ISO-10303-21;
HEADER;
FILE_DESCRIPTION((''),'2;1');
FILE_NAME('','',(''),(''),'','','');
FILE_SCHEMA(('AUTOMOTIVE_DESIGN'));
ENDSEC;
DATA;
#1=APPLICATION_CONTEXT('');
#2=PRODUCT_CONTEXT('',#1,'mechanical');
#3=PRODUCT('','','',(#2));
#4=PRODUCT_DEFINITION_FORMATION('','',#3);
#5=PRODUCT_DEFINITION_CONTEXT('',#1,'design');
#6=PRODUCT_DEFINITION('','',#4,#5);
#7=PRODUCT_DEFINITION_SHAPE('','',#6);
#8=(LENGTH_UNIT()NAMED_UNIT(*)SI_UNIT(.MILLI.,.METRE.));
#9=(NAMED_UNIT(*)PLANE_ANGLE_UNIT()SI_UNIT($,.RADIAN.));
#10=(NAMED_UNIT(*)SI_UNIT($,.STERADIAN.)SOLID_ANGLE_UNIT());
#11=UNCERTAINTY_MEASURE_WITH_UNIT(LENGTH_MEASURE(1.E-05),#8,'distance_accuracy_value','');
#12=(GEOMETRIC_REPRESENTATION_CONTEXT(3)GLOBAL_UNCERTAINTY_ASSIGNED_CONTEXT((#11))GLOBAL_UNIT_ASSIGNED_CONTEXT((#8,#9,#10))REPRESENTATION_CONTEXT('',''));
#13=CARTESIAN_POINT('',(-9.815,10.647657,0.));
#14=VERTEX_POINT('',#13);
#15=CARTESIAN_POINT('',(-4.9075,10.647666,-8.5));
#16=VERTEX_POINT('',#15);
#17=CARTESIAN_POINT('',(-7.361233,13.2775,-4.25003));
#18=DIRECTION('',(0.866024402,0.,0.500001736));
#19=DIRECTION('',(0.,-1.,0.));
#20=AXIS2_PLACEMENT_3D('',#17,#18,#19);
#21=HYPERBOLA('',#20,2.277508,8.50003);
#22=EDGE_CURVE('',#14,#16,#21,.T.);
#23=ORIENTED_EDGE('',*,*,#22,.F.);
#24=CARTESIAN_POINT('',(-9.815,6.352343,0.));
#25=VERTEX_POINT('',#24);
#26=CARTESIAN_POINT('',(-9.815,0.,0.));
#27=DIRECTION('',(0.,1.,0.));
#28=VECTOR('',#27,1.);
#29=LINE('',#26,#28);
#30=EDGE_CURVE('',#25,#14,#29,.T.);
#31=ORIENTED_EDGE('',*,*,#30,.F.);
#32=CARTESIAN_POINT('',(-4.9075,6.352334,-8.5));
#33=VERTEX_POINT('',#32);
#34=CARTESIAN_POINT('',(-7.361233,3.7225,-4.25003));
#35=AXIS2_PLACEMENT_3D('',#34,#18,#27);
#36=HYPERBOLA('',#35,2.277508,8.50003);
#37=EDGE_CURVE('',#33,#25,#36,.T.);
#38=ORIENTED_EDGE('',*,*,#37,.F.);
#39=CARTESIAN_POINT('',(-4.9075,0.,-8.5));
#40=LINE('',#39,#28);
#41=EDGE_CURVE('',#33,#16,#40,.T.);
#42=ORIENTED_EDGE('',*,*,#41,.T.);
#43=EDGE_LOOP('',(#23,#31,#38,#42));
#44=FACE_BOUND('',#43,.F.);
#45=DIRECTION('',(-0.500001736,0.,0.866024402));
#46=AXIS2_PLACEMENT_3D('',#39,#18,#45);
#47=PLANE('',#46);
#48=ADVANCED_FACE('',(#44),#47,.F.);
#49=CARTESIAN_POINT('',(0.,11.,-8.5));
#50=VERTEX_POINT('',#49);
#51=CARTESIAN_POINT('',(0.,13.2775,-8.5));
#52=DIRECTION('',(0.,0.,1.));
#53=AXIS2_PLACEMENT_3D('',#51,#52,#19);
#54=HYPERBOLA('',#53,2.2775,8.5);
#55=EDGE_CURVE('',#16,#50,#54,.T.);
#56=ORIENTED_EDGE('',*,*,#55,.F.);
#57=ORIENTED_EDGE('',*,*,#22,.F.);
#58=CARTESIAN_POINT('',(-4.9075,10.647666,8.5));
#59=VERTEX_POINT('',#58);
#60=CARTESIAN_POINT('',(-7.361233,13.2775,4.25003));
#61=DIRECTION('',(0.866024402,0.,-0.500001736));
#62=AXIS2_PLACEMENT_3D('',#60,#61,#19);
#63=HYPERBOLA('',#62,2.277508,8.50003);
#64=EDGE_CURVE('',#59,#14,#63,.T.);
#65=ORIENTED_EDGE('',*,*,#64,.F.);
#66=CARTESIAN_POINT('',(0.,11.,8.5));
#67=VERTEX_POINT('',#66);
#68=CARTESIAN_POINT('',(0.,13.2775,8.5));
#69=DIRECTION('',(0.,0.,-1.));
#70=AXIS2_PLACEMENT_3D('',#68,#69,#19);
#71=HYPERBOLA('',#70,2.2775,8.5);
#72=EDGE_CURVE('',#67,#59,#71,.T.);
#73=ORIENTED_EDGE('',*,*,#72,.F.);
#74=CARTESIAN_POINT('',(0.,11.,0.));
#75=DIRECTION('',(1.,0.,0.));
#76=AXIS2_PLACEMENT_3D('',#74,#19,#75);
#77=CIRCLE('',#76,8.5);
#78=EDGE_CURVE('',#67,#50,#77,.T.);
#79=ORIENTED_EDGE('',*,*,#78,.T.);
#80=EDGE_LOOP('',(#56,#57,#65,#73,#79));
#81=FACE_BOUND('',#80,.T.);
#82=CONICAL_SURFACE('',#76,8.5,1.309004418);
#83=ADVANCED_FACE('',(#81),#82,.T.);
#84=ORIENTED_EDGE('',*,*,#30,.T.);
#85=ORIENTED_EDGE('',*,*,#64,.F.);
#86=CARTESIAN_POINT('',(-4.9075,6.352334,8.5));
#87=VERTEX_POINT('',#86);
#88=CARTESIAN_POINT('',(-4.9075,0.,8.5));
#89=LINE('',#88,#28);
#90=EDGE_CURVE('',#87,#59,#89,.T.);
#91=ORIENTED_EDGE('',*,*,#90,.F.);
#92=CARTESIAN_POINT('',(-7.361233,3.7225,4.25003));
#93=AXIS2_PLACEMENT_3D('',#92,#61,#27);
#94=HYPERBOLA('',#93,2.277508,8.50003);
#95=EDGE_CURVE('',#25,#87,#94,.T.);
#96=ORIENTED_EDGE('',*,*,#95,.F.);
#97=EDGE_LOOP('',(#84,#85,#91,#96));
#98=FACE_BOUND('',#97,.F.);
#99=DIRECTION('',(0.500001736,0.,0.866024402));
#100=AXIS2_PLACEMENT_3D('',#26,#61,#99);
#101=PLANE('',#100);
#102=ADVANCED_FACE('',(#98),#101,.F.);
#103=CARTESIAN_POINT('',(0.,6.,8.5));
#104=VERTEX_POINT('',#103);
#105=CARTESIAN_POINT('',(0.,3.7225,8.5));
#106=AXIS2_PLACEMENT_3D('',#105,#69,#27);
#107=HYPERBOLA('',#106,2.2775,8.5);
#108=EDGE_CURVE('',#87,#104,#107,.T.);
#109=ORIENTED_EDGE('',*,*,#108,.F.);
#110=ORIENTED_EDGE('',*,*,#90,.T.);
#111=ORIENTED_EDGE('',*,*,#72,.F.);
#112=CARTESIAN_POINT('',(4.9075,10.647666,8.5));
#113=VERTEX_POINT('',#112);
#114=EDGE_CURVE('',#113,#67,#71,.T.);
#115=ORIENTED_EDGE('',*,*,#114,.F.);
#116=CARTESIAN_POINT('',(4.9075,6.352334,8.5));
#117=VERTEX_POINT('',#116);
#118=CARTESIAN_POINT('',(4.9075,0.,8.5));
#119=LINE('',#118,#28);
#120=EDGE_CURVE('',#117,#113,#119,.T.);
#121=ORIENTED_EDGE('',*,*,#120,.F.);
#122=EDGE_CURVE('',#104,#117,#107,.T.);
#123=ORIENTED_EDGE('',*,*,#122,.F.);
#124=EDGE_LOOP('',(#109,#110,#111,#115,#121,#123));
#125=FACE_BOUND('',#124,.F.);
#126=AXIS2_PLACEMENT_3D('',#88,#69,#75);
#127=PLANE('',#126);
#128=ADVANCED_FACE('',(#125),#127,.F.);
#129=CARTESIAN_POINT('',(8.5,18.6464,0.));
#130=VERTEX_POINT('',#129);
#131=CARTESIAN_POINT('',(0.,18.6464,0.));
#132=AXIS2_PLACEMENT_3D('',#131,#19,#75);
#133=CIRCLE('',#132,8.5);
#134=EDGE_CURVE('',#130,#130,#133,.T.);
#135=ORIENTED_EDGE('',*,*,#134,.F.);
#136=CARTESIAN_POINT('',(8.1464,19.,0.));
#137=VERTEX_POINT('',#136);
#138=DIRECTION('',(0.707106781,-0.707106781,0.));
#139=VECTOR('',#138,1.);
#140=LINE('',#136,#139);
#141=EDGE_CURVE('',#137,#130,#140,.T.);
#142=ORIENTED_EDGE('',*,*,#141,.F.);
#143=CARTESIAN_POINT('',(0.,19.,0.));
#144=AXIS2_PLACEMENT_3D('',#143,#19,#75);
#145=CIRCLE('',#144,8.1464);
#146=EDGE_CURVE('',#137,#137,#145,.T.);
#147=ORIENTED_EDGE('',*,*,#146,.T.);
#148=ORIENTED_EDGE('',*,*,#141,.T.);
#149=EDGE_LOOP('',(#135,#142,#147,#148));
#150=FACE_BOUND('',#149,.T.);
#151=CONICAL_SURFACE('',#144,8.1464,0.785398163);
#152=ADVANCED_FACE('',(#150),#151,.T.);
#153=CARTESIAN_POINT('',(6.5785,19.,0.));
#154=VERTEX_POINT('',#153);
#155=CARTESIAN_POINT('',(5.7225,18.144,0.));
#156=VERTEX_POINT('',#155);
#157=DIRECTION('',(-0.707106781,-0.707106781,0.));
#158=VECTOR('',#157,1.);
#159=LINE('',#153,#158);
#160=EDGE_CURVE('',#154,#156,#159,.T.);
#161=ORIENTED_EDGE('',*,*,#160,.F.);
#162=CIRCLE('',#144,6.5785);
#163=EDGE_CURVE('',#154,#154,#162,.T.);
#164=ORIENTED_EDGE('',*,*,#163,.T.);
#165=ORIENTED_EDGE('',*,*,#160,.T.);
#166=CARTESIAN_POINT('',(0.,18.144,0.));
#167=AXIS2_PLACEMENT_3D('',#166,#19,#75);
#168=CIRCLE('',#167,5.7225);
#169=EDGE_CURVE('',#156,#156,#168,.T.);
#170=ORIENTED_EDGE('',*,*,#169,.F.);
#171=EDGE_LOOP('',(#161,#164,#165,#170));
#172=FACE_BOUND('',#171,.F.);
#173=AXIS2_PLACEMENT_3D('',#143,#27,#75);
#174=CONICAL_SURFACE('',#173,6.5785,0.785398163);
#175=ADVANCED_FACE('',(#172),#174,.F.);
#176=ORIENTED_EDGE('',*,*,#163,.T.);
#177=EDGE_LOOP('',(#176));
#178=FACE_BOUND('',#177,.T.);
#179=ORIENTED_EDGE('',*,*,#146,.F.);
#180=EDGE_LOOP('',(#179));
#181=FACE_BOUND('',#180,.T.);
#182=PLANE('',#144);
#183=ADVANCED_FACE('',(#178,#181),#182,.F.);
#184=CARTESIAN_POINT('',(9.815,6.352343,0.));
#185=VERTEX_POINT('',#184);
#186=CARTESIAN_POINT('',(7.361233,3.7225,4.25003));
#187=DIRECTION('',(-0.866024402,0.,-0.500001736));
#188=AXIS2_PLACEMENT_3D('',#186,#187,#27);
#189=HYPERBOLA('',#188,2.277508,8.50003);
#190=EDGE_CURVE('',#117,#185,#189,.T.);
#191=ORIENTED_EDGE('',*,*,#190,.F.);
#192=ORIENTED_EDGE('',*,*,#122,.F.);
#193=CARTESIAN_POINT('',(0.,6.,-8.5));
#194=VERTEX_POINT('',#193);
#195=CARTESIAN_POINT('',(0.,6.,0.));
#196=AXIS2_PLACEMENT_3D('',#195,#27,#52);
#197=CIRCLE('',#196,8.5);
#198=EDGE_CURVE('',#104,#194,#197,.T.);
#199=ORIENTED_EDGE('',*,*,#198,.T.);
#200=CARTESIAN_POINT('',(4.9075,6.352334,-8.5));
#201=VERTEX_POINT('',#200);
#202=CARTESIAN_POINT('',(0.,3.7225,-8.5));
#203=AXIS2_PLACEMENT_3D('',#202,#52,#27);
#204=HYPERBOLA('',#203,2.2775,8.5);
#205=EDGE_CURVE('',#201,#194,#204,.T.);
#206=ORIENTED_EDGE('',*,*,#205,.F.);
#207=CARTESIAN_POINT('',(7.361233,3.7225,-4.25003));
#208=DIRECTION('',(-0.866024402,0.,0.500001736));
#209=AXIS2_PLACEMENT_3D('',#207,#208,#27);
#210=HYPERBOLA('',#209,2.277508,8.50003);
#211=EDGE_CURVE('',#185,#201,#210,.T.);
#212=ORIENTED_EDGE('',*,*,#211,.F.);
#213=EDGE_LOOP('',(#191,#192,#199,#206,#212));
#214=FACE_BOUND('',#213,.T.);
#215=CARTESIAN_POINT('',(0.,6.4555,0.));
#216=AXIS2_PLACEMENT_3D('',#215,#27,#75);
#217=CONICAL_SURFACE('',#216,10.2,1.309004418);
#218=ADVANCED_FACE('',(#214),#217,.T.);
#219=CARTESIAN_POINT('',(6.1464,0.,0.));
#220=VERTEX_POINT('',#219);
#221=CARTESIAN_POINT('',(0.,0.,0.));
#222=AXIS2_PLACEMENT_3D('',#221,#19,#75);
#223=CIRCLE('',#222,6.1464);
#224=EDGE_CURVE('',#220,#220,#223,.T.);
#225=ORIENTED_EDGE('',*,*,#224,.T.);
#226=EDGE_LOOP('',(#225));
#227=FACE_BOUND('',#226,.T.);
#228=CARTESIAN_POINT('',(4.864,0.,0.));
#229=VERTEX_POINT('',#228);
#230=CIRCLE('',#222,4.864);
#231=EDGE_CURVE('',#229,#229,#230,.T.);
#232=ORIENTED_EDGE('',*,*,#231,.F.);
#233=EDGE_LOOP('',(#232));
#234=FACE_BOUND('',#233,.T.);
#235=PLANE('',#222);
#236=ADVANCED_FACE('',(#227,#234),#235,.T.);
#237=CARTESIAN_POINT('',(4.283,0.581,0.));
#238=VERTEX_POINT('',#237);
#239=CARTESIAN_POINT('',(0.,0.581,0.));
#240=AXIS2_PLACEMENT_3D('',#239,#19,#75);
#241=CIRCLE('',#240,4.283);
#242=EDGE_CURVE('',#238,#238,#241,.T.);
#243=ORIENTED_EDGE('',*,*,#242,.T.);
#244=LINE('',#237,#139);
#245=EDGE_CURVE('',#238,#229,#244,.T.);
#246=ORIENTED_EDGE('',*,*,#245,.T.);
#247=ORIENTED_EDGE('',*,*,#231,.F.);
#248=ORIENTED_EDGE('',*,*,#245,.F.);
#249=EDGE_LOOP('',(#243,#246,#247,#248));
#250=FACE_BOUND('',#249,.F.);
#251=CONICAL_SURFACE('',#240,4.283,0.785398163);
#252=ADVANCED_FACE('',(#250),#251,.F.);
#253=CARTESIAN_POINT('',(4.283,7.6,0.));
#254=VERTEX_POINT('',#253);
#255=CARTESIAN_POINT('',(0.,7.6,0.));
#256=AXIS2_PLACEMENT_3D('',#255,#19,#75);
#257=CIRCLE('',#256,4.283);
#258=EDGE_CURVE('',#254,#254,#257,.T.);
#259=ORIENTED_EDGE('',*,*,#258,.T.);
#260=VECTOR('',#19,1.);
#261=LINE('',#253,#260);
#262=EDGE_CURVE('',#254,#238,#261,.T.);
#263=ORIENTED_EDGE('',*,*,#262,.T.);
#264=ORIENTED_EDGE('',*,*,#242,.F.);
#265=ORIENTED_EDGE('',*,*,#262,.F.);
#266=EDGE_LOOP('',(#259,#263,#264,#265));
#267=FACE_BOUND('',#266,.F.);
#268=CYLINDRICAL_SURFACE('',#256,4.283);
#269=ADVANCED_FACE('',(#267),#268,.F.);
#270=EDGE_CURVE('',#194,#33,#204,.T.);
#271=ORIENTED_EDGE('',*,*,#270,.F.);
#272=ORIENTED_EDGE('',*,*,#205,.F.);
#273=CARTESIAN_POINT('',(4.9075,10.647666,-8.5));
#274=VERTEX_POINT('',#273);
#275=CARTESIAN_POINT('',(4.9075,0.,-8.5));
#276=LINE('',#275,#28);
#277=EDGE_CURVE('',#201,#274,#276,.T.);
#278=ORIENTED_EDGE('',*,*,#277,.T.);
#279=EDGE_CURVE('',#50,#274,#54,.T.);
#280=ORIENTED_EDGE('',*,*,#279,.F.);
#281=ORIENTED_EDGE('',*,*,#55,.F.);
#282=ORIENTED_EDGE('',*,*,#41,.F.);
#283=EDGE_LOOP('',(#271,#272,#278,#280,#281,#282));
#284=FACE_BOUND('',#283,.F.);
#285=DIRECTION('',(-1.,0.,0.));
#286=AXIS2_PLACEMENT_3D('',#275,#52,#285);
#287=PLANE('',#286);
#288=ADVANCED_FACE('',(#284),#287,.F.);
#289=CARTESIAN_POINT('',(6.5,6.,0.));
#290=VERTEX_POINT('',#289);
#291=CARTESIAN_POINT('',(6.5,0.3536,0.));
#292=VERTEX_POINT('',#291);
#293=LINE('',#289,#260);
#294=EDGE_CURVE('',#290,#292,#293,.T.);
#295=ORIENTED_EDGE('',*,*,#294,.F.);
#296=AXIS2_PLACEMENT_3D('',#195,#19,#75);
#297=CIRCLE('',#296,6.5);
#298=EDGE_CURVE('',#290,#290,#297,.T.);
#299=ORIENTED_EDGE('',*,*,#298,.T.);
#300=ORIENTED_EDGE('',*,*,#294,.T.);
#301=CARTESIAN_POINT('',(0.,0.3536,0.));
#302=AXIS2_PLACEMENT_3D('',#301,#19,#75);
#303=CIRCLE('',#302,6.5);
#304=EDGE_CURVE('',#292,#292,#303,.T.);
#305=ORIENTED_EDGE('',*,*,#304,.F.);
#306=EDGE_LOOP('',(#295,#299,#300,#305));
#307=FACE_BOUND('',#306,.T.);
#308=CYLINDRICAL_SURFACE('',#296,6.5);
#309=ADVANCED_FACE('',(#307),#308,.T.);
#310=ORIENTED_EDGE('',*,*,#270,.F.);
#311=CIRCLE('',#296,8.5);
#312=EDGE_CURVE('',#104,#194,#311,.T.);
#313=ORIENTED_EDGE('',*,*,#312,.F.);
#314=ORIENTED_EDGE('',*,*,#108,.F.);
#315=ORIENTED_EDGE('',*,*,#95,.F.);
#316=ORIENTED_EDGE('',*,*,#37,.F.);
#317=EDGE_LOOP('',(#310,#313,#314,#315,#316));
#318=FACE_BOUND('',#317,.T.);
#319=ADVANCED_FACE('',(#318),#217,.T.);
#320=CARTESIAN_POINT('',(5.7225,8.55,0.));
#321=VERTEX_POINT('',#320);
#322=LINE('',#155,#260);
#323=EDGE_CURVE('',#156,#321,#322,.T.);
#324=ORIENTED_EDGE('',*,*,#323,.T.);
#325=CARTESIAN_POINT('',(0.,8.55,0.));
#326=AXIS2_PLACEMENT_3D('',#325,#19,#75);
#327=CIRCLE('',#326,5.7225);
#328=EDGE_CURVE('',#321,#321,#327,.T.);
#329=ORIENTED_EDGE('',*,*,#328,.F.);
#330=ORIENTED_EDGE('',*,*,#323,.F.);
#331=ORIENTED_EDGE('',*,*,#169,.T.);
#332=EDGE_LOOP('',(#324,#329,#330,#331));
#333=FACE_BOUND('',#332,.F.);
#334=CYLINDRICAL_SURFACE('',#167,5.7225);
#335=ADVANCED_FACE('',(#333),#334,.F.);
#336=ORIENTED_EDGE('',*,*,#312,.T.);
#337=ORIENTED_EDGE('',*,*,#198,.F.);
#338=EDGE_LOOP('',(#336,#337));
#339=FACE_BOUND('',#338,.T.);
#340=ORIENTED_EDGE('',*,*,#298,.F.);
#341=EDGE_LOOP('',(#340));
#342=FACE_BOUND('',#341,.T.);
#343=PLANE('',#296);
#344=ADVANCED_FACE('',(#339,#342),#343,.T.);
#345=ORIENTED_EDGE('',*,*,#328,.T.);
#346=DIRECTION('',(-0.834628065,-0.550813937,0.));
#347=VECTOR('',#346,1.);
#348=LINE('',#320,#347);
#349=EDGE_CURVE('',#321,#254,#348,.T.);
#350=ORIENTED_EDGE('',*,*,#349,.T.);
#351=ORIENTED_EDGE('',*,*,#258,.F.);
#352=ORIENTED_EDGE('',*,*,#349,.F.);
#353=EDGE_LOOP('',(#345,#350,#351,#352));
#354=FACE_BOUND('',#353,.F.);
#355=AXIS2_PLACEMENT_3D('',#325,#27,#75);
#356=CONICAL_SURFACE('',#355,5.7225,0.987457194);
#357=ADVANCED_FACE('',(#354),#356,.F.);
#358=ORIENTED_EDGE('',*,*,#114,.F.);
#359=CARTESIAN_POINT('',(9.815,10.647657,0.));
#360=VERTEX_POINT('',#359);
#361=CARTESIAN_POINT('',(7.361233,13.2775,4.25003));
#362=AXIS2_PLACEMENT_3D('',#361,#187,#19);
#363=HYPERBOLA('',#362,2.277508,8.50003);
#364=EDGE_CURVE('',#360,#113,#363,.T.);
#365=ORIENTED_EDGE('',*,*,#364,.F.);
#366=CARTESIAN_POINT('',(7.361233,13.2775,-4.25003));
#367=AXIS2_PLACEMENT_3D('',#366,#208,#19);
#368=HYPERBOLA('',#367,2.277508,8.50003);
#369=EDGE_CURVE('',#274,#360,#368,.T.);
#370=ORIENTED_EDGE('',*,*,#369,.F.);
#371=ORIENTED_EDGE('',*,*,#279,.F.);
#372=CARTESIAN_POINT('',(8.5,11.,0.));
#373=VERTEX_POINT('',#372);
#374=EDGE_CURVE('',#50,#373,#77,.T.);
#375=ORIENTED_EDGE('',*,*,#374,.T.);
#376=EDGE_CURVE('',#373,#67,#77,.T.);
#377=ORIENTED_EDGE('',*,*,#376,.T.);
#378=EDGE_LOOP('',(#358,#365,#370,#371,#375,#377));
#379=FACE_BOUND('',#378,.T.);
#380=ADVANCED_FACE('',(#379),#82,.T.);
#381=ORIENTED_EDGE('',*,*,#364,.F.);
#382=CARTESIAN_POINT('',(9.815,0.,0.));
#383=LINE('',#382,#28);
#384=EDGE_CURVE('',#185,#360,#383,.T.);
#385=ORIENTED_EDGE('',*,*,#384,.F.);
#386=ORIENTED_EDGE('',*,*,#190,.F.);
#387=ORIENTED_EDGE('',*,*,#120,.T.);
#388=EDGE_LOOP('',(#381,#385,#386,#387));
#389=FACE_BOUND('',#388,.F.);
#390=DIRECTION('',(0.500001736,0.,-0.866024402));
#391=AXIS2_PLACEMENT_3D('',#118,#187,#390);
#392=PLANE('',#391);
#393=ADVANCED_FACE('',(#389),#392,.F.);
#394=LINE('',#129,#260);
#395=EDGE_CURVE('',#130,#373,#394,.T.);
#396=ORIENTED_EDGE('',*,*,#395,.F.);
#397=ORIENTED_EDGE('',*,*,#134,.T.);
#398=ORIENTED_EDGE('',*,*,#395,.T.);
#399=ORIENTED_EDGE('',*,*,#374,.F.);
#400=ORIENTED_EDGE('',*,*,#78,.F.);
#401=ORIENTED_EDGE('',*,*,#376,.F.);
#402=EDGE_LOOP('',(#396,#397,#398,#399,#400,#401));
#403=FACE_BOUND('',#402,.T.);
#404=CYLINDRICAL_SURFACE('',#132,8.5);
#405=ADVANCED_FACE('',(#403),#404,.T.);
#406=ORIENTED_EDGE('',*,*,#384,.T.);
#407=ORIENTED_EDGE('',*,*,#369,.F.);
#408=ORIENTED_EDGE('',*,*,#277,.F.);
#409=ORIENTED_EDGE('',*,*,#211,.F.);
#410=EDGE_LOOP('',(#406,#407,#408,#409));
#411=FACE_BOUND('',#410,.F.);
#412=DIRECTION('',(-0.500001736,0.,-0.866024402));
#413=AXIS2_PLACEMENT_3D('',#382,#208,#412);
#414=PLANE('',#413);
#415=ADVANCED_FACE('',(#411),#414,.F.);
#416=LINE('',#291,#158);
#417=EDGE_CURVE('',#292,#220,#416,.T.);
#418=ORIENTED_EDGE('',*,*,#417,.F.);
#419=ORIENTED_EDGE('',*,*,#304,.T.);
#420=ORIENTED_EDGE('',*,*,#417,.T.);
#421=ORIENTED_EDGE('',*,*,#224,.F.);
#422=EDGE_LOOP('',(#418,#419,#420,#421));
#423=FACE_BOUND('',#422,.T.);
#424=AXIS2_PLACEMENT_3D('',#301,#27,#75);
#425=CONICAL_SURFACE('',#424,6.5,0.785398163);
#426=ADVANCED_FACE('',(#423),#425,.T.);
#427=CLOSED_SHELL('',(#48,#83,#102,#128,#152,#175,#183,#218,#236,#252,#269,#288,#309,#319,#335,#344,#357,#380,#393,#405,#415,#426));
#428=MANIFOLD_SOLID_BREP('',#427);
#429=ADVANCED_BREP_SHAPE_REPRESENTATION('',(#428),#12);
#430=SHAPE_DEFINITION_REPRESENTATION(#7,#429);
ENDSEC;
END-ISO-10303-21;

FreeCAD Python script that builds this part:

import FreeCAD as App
import Part
import Sketcher
Q = App.Units.Quantity


def add_polygon(sketch, points):
    """Adds a closed chain of lines whose ends are joined by coincident constraints."""
    first, n = sketch.GeometryCount, len(points)
    for a, b in zip(points, points[1:] + points[:1]):
        sketch.addGeometry(Part.LineSegment(App.Vector(*a, 0), App.Vector(*b, 0)), False)
    for i in range(n):
        sketch.addConstraint(Sketcher.Constraint("Coincident", first + i, 2, first + (i + 1) % n, 1))

doc = App.newDocument("Part")
body = doc.addObject("PartDesign::Body", "Body")

sketch1 = body.newObject("Sketcher::SketchObject", "Sketch")
sketch1.AttachmentSupport = (doc.getObject("XY_Plane"), [""])
sketch1.MapMode = "FlatFace"
add_polygon(sketch1, [(0, 19), (0, 0), (6.1464, 0), (6.5, 0.3536), (6.5, 6), (8.5, 6), (10.2, 6.4555), (10.2, 10.5445), (8.5, 11), (8.5, 18.6464), (8.1464, 19)])
sketch1.addConstraint(Sketcher.Constraint("Vertical", 0))
sketch1.addConstraint(Sketcher.Constraint("Horizontal", 1))
sketch1.addConstraint(Sketcher.Constraint("Vertical", 3))
sketch1.addConstraint(Sketcher.Constraint("Horizontal", 4))
sketch1.addConstraint(Sketcher.Constraint("Vertical", 6))
sketch1.addConstraint(Sketcher.Constraint("Vertical", 8))
sketch1.addConstraint(Sketcher.Constraint("Horizontal", 10))
sketch1.addConstraint(Sketcher.Constraint("Coincident", 0, 2, -1, 1))
sketch1.addConstraint(Sketcher.Constraint("Perpendicular", 2, 9))
sketch1.addConstraint(Sketcher.Constraint("Vertical", 4, 2, 7, 2))
sketch1.addConstraint(Sketcher.Constraint("Equal", 5, 7))
sketch1.addConstraint(Sketcher.Constraint("Equal", 2, 9))
sketch1.addConstraint(Sketcher.Constraint("DistanceX", 4, 1, 4, 2, Q("2 mm")))
sketch1.addConstraint(Sketcher.Constraint("DistanceY", 0, 2, 0, 1, Q("19 mm")))
sketch1.addConstraint(Sketcher.Constraint("Angle", 2, Q("45 deg")))
sketch1.addConstraint(Sketcher.Constraint("Angle", 5, Q("14.9996 deg")))
sketch1.addConstraint(Sketcher.Constraint("DistanceY", -1, 1, 3, 2, Q("6 mm")))
sketch1.addConstraint(Sketcher.Constraint("DistanceY", -1, 1, 7, 2, Q("11 mm")))
sketch1.addConstraint(Sketcher.Constraint("Distance", 2, Q("0.5 mm")))
sketch1.addConstraint(Sketcher.Constraint("DistanceX", -1, 1, 2, 2, Q("6.5 mm")))
sketch1.addConstraint(Sketcher.Constraint("DistanceX", -1, 1, 5, 2, Q("10.2 mm")))
revolution = body.newObject("PartDesign::Revolution", "Revolution")
revolution.Profile = sketch1
revolution.ReferenceAxis = (sketch1, ["V_Axis"])
revolution.Angle = 360

sketch2 = body.newObject("Sketcher::SketchObject", "Sketch001")
sketch2.AttachmentSupport = (doc.getObject("XZ_Plane"), [""])
sketch2.MapMode = "FlatFace"
add_polygon(sketch2, [(-17, -17), (-17, 17), (17, 17), (17, -17)])
add_polygon(sketch2, [(-4.9075, 8.5), (-9.815, 0), (-4.9075, -8.5), (4.9075, -8.5), (9.815, 0), (4.9075, 8.5)])
sketch2.addConstraint(Sketcher.Constraint("Vertical", 0))
sketch2.addConstraint(Sketcher.Constraint("Horizontal", 1))
sketch2.addConstraint(Sketcher.Constraint("Vertical", 2))
sketch2.addConstraint(Sketcher.Constraint("Horizontal", 3))
sketch2.addConstraint(Sketcher.Constraint("Horizontal", 6))
sketch2.addConstraint(Sketcher.Constraint("Horizontal", 9))
sketch2.addConstraint(Sketcher.Constraint("Symmetric", 0, 2, 2, 2, -1, 1))
sketch2.addConstraint(Sketcher.Constraint("Symmetric", 4, 2, 7, 2, -1, 1))
sketch2.addConstraint(Sketcher.Constraint("Symmetric", 5, 2, 8, 2, -1, 1))
sketch2.addConstraint(Sketcher.Constraint("PointOnObject", 4, 2, -1))
sketch2.addConstraint(Sketcher.Constraint("Parallel", 4, 7))
sketch2.addConstraint(Sketcher.Constraint("Vertical", 6, 2, 8, 2))
sketch2.addConstraint(Sketcher.Constraint("Equal", 3, 0))
sketch2.addConstraint(Sketcher.Constraint("DistanceX", 1, 1, 1, 2, Q("34 mm")))
sketch2.addConstraint(Sketcher.Constraint("Angle", 4, Q("-120 deg")))
sketch2.addConstraint(Sketcher.Constraint("DistanceY", 6, 2, 8, 2, Q("17 mm")))
sketch2.addConstraint(Sketcher.Constraint("DistanceX", 6, 1, 6, 2, Q("9.815 mm")))
pocket1 = body.newObject("PartDesign::Pocket", "Pocket")
pocket1.Profile = sketch2
pocket1.Length = 13.3

sketch3 = body.newObject("Sketcher::SketchObject", "Sketch002")
sketch3.AttachmentSupport = (doc.getObject("XY_Plane"), [""])
sketch3.MapMode = "FlatFace"
add_polygon(sketch3, [(0, 19), (0, 0), (4.864, 0), (4.283, 0.581), (4.283, 7.6), (5.7225, 8.55), (5.7225, 18.144), (6.5785, 19)])
sketch3.addConstraint(Sketcher.Constraint("Vertical", 0))
sketch3.addConstraint(Sketcher.Constraint("Horizontal", 1))
sketch3.addConstraint(Sketcher.Constraint("Vertical", 3))
sketch3.addConstraint(Sketcher.Constraint("Vertical", 5))
sketch3.addConstraint(Sketcher.Constraint("Horizontal", 7))
sketch3.addConstraint(Sketcher.Constraint("Coincident", 0, 2, -1, 1))
sketch3.addConstraint(Sketcher.Constraint("Perpendicular", 2, 6))
sketch3.addConstraint(Sketcher.Constraint("DistanceY", 0, 2, 0, 1, Q("19 mm")))
sketch3.addConstraint(Sketcher.Constraint("Angle", 2, Q("135 deg")))
sketch3.addConstraint(Sketcher.Constraint("DistanceY", -1, 1, 3, 2, Q("7.6 mm")))
sketch3.addConstraint(Sketcher.Constraint("DistanceX", 1, 1, 1, 2, Q("4.864 mm")))
sketch3.addConstraint(Sketcher.Constraint("DistanceY", 3, 1, 3, 2, Q("7.019 mm")))
sketch3.addConstraint(Sketcher.Constraint("DistanceY", 5, 1, 5, 2, Q("9.594 mm")))
sketch3.addConstraint(Sketcher.Constraint("DistanceY", -1, 1, 4, 2, Q("8.55 mm")))
sketch3.addConstraint(Sketcher.Constraint("DistanceX", 7, 2, 7, 1, Q("6.5785 mm")))
groove = body.newObject("PartDesign::Groove", "Groove")
groove.Profile = sketch3
groove.ReferenceAxis = (sketch3, ["V_Axis"])
groove.Angle = 360

doc.recompute()
